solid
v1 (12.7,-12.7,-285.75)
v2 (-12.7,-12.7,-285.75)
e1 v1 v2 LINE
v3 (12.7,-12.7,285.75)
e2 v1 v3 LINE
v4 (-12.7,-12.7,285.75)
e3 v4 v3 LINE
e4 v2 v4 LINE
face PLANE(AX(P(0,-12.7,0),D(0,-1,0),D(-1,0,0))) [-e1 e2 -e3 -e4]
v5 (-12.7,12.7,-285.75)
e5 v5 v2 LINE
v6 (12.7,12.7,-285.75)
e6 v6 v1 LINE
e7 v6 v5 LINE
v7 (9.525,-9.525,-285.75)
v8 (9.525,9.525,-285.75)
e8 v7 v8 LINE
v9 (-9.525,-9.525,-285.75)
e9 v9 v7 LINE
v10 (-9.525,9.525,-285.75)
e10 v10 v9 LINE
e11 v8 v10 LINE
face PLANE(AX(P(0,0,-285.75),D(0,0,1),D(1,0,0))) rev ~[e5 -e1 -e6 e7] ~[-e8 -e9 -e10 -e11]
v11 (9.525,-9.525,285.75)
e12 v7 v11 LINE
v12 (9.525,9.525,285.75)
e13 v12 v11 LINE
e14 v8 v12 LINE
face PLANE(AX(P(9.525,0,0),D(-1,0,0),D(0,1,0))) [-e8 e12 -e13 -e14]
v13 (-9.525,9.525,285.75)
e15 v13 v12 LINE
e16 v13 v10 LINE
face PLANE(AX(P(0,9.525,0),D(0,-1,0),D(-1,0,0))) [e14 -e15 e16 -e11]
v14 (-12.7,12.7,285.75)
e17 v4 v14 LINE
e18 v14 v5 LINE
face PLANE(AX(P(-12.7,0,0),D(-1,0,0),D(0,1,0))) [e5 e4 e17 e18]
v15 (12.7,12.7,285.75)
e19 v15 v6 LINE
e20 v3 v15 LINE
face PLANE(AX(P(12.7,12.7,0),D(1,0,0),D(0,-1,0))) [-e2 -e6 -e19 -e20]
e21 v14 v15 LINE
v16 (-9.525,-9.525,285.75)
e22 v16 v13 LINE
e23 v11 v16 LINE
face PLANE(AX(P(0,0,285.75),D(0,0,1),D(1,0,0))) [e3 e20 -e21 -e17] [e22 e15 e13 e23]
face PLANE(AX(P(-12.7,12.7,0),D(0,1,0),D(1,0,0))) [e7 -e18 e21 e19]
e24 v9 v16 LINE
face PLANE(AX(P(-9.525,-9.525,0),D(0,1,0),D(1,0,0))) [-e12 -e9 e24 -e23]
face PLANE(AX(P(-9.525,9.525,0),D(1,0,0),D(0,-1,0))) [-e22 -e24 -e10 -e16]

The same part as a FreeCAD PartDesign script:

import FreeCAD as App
import Part
import Sketcher

V = App.Vector
Q = App.Units.Quantity

doc = App.newDocument("Part")
body = doc.addObject("PartDesign::Body", "Body")

# Sketch on XY plane
sketch1 = doc.addObject("Sketcher::SketchObject", "Sketch")
body.addObject(sketch1)
sketch1.AttachmentSupport = (doc.XY_Plane, [""])
sketch1.MapMode = "FlatFace"
sketch1.addGeometry(Part.LineSegment(V(-13, 13, 0), V(-13, -13, 0)), False)
sketch1.addGeometry(Part.LineSegment(V(-13, -13, 0), V(13, -13, 0)), False)
sketch1.addGeometry(Part.LineSegment(V(13, -13, 0), V(13, 13, 0)), False)
sketch1.addGeometry(Part.LineSegment(V(13, 13, 0), V(-13, 13, 0)), False)
sketch1.addGeometry(Part.LineSegment(V(-10, 10, 0), V(10, 10, 0)), False)
sketch1.addGeometry(Part.LineSegment(V(10, 10, 0), V(10, -10, 0)), False)
sketch1.addGeometry(Part.LineSegment(V(10, -10, 0), V(-10, -10, 0)), False)
sketch1.addGeometry(Part.LineSegment(V(-10, -10, 0), V(-10, 10, 0)), False)
sketch1.addConstraint(Sketcher.Constraint("Coincident", 0, 2, 1, 1))
sketch1.addConstraint(Sketcher.Constraint("Coincident", 1, 2, 2, 1))
sketch1.addConstraint(Sketcher.Constraint("Coincident", 2, 2, 3, 1))
sketch1.addConstraint(Sketcher.Constraint("Coincident", 3, 2, 0, 1))
sketch1.addConstraint(Sketcher.Constraint("Coincident", 4, 2, 5, 1))
sketch1.addConstraint(Sketcher.Constraint("Coincident", 5, 2, 6, 1))
sketch1.addConstraint(Sketcher.Constraint("Coincident", 6, 2, 7, 1))
sketch1.addConstraint(Sketcher.Constraint("Coincident", 7, 2, 4, 1))
sketch1.addConstraint(Sketcher.Constraint("Vertical", 0))
sketch1.addConstraint(Sketcher.Constraint("Horizontal", 1))
sketch1.addConstraint(Sketcher.Constraint("Vertical", 2))
sketch1.addConstraint(Sketcher.Constraint("Horizontal", 3))
sketch1.addConstraint(Sketcher.Constraint("Horizontal", 4))
sketch1.addConstraint(Sketcher.Constraint("Vertical", 5))
sketch1.addConstraint(Sketcher.Constraint("Horizontal", 6))
sketch1.addConstraint(Sketcher.Constraint("Vertical", 7))
sketch1.addConstraint(Sketcher.Constraint("Symmetric", 0, 2, 2, 2, -1, 1))
sketch1.addConstraint(Sketcher.Constraint("Symmetric", 4, 2, 6, 2, -1, 1))
sketch1.addConstraint(Sketcher.Constraint("Equal", 3, 0))
sketch1.addConstraint(Sketcher.Constraint("Equal", 6, 5))
sketch1.addConstraint(Sketcher.Constraint("DistanceX", 1, 1, 1, 2, Q("1 in")))
sketch1.addConstraint(Sketcher.Constraint("DistanceX", 4, 2, 2, 2, Q("0.125 in")))
pad1 = doc.addObject("PartDesign::Pad", "Pad")
body.addObject(pad1)
pad1.Profile = sketch1
pad1.Length = Q("22.5 in")
pad1.Midplane = True

doc.recompute()
